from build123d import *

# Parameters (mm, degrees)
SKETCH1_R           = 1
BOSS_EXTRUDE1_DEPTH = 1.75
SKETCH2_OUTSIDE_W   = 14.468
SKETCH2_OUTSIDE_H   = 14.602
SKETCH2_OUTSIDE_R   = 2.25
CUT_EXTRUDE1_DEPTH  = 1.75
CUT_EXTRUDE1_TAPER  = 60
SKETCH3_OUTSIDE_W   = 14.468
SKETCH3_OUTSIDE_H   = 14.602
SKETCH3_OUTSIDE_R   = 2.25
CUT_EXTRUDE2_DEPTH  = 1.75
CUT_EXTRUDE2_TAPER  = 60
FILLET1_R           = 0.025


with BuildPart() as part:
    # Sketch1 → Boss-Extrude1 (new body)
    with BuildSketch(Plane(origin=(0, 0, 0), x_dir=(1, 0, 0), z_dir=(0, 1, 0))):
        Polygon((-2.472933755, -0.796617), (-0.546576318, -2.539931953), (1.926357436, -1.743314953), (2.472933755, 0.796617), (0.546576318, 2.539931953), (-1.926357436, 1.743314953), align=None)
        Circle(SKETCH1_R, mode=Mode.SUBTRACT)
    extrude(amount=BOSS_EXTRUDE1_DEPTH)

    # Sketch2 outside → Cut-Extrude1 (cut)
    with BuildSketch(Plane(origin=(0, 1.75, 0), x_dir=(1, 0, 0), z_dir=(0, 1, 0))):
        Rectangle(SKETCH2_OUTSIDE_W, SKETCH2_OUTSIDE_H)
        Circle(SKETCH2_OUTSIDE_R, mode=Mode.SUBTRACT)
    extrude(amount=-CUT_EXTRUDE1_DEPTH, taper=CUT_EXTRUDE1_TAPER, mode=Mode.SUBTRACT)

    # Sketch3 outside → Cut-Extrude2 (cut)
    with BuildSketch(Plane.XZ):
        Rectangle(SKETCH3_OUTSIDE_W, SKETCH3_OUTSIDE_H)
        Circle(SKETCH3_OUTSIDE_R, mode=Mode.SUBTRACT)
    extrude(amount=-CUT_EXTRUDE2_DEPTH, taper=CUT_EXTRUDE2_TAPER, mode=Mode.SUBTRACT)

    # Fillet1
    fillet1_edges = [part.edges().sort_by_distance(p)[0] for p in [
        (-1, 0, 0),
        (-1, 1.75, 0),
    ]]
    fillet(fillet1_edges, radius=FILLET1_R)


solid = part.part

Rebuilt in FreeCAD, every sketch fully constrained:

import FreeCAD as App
import Part
import Sketcher
from FreeCAD import Vector
Q = App.Units.Quantity


def edges_at(feature, points):
    """Names of the edges that pass closest to the given points."""
    edges = feature.Shape.Edges
    near = lambda p: min(range(len(edges)), key=lambda i: edges[i].distToShape(Part.Vertex(*p))[0])
    return sorted({f"Edge{near(p) + 1}" for p in points})


def add_polygon(sketch, points):
    """Adds a closed chain of lines whose ends are joined by coincident constraints."""
    first, n = sketch.GeometryCount, len(points)
    for a, b in zip(points, points[1:] + points[:1]):
        sketch.addGeometry(Part.LineSegment(App.Vector(*a, 0), App.Vector(*b, 0)), False)
    for i in range(n):
        sketch.addConstraint(Sketcher.Constraint("Coincident", first + i, 2, first + (i + 1) % n, 1))

doc = App.newDocument("Part")
body = doc.addObject("PartDesign::Body", "Body")

# Sketch on XZ plane
sketch1 = body.newObject("Sketcher::SketchObject", "Sketch")
sketch1.AttachmentSupport = (doc.getObject("XZ_Plane"), [""])
sketch1.MapMode = "FlatFace"
add_polygon(sketch1, [(-2.5, 0.8), (-0.5, 2.5), (1.9, 1.7), (2.5, -0.8), (0.5, -2.5), (-1.9, -1.7)])  # lines 0-5
sketch1.addGeometry(Part.Circle(Vector(0, 0, 0), Vector(0, 0, 1), 1), False)  # 6
sketch1.addConstraint(Sketcher.Constraint("Coincident", 6, 3, -1, 1))
sketch1.addConstraint(Sketcher.Constraint("Symmetric", 0, 2, 3, 2, -1, 1))
sketch1.addConstraint(Sketcher.Constraint("Symmetric", 1, 2, 4, 2, -1, 1))
sketch1.addConstraint(Sketcher.Constraint("Symmetric", 2, 2, 5, 2, -1, 1))
sketch1.addConstraint(Sketcher.Constraint("Equal", 0, 1))
sketch1.addConstraint(Sketcher.Constraint("Equal", 1, 2))
sketch1.addConstraint(Sketcher.Constraint("Diameter", 6, Q("2 mm")))
sketch1.addConstraint(Sketcher.Constraint("DistanceY", -1, 1, 0, 2, Q("2.539932 mm")))
sketch1.addConstraint(Sketcher.Constraint("DistanceY", 2, 2, 1, 2, Q("2.539932 mm")))
sketch1.addConstraint(Sketcher.Constraint("DistanceX", 0, 2, 2, 2, Q("3.01951 mm")))
sketch1.addConstraint(Sketcher.Constraint("DistanceY", 2, 2, 0, 2, Q("3.336549 mm")))
pad1 = body.newObject("PartDesign::Pad", "Pad")
pad1.Profile = sketch1
pad1.Length = 1.75
pad1.Reversed = True

# Sketch on XZ plane
sketch2 = body.newObject("Sketcher::SketchObject", "Sketch001")
sketch2.AttachmentSupport = (doc.getObject("XZ_Plane"), [""])
sketch2.MapMode = "FlatFace"
sketch2.AttachmentOffset = App.Placement(Vector(0, 0, -1.75), App.Rotation())
add_polygon(sketch2, [(-7.2, -7.3), (-7.2, 7.3), (7.2, 7.3), (7.2, -7.3)])  # lines 0-3
sketch2.addGeometry(Part.Circle(Vector(0, 0, 0), Vector(0, 0, 1), 2.2), False)  # 4
sketch2.addConstraint(Sketcher.Constraint("Vertical", 0))
sketch2.addConstraint(Sketcher.Constraint("Horizontal", 1))
sketch2.addConstraint(Sketcher.Constraint("Vertical", 2))
sketch2.addConstraint(Sketcher.Constraint("Horizontal", 3))
sketch2.addConstraint(Sketcher.Constraint("Coincident", 4, 3, -1, 1))
sketch2.addConstraint(Sketcher.Constraint("Symmetric", 0, 2, 2, 2, -1, 1))
sketch2.addConstraint(Sketcher.Constraint("Diameter", 4, Q("4.5 mm")))
sketch2.addConstraint(Sketcher.Constraint("DistanceX", 1, 1, 1, 2, Q("14.468 mm")))
sketch2.addConstraint(Sketcher.Constraint("DistanceY", 0, 1, 0, 2, Q("14.602 mm")))
pocket1 = body.newObject("PartDesign::Pocket", "Pocket")
pocket1.Profile = sketch2
pocket1.Length = 1.75
pocket1.Reversed = True
pocket1.TaperAngle = 60

# Sketch on XZ plane
sketch3 = body.newObject("Sketcher::SketchObject", "Sketch002")
sketch3.AttachmentSupport = (doc.getObject("XZ_Plane"), [""])
sketch3.MapMode = "FlatFace"
add_polygon(sketch3, [(-7.2, 7.3), (-7.2, -7.3), (7.2, -7.3), (7.2, 7.3)])  # lines 0-3
sketch3.addGeometry(Part.Circle(Vector(0, 0, 0), Vector(0, 0, 1), 2.2), False)  # 4
sketch3.addConstraint(Sketcher.Constraint("Vertical", 0))
sketch3.addConstraint(Sketcher.Constraint("Horizontal", 1))
sketch3.addConstraint(Sketcher.Constraint("Vertical", 2))
sketch3.addConstraint(Sketcher.Constraint("Horizontal", 3))
sketch3.addConstraint(Sketcher.Constraint("Coincident", 4, 3, -1, 1))
sketch3.addConstraint(Sketcher.Constraint("Symmetric", 0, 2, 2, 2, -1, 1))
sketch3.addConstraint(Sketcher.Constraint("Diameter", 4, Q("4.5 mm")))
sketch3.addConstraint(Sketcher.Constraint("DistanceX", 1, 1, 1, 2, Q("14.468 mm")))
sketch3.addConstraint(Sketcher.Constraint("DistanceY", 0, 2, 0, 1, Q("14.602 mm")))
pocket2 = body.newObject("PartDesign::Pocket", "Pocket001")
pocket2.Profile = sketch3
pocket2.Length = 1.75
pocket2.TaperAngle = 60
doc.recompute()

fillet = body.newObject("PartDesign::Fillet", "Fillet")
fillet.Base = (pocket2, edges_at(pocket2, [(-1, 0, 0), (-1, 1.75, 0)]))
fillet.Radius = 0.025

doc.recompute()
